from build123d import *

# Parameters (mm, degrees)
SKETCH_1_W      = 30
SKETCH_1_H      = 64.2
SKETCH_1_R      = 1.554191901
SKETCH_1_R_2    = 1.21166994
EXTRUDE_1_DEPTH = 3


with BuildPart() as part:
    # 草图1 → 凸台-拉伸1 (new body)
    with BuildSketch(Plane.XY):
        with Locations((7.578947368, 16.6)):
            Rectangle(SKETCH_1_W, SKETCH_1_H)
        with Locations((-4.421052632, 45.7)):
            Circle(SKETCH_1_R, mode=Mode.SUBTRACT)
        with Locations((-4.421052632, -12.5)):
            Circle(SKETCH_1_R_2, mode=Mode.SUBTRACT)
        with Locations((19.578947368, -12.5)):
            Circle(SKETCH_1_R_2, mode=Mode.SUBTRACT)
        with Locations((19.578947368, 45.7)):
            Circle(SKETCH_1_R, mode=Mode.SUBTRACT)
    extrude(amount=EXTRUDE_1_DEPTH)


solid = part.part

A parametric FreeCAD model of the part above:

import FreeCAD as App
import Part
import Sketcher

V = App.Vector
Q = App.Units.Quantity


def add_polygon(sketch, points):
    """Adds a closed chain of lines whose ends are joined by coincident constraints."""
    first, n = sketch.GeometryCount, len(points)
    for a, b in zip(points, points[1:] + points[:1]):
        sketch.addGeometry(Part.LineSegment(App.Vector(*a, 0), App.Vector(*b, 0)), False)
    for i in range(n):
        sketch.addConstraint(Sketcher.Constraint("Coincident", first + i, 2, first + (i + 1) % n, 1))

doc = App.newDocument("Part")
params = doc.addObject("Spreadsheet::Sheet", "Params")
for row, (alias, value) in enumerate([
    ("sketch1_width", "30 mm"),
    ("sketch1_height", "64.2 mm"),
    ("pad1_length", "3 mm"),
], start=1):
    params.set(f"A{row}", alias)
    params.set(f"B{row}", "=" + value)
    params.setAlias(f"B{row}", alias)

body = doc.addObject("PartDesign::Body", "Body")

sketch1 = doc.addObject("Sketcher::SketchObject", "Sketch")
body.addObject(sketch1)
sketch1.AttachmentSupport = (doc.XY_Plane, [""])
sketch1.MapMode = "FlatFace"
add_polygon(sketch1, [(-7.421053, 48.7), (-7.421053, -15.5), (22.578947, -15.5), (22.578947, 48.7)])
sketch1.addGeometry(Part.Circle(V(-4.421053, -12.5, 0), V(0, 0, 1), 1.21167), False)
sketch1.addGeometry(Part.Circle(V(19.578947, -12.5, 0), V(0, 0, 1), 1.21167), False)
sketch1.addGeometry(Part.Circle(V(-4.421053, 45.7, 0), V(0, 0, 1), 1.554192), False)
sketch1.addGeometry(Part.Circle(V(19.578947, 45.7, 0), V(0, 0, 1), 1.554192), False)
sketch1.addConstraint(Sketcher.Constraint("Vertical", 0))
sketch1.addConstraint(Sketcher.Constraint("Horizontal", 1))
sketch1.addConstraint(Sketcher.Constraint("Vertical", 2))
sketch1.addConstraint(Sketcher.Constraint("Horizontal", 3))
sketch1.addConstraint(Sketcher.Constraint("Equal", 4, 5))
sketch1.addConstraint(Sketcher.Constraint("Equal", 6, 7))
sketch1.addConstraint(Sketcher.Constraint("Horizontal", 4, 3, 5, 3))
sketch1.addConstraint(Sketcher.Constraint("Horizontal", 6, 3, 7, 3))
sketch1.addConstraint(Sketcher.Constraint("Vertical", 4, 3, 6, 3))
sketch1.addConstraint(Sketcher.Constraint("Vertical", 5, 3, 7, 3))
sketch1.addConstraint(Sketcher.Constraint("DistanceX", 1, 1, 1, 2, Q("30 mm")))
sketch1.addConstraint(Sketcher.Constraint("DistanceY", 0, 2, 0, 1, Q("64.2 mm")))
sketch1.addConstraint(Sketcher.Constraint("DistanceX", 4, 3, 5, 3, Q("24 mm")))
sketch1.addConstraint(Sketcher.Constraint("DistanceX", 0, 2, 4, 3, Q("3 mm")))
sketch1.addConstraint(Sketcher.Constraint("DistanceY", 0, 2, 4, 3, Q("3 mm")))
sketch1.addConstraint(Sketcher.Constraint("DistanceY", 7, 3, 2, 2, Q("3 mm")))
sketch1.addConstraint(Sketcher.Constraint("DistanceY", 4, 3, -1, 1, Q("12.5 mm")))
sketch1.addConstraint(Sketcher.Constraint("Diameter", 4, Q("2.42334 mm")))
sketch1.addConstraint(Sketcher.Constraint("Diameter", 6, Q("3.108384 mm")))
sketch1.addConstraint(Sketcher.Constraint("DistanceX", 4, 3, -1, 1, Q("4.421053 mm")))
sketch1.setExpression("Constraints[14]", "Params.sketch1_width")
sketch1.setExpression("Constraints[15]", "Params.sketch1_height")
pad1 = doc.addObject("PartDesign::Pad", "Pad")
body.addObject(pad1)
pad1.Profile = sketch1
pad1.setExpression("Length", "Params.pad1_length")

doc.recompute()
